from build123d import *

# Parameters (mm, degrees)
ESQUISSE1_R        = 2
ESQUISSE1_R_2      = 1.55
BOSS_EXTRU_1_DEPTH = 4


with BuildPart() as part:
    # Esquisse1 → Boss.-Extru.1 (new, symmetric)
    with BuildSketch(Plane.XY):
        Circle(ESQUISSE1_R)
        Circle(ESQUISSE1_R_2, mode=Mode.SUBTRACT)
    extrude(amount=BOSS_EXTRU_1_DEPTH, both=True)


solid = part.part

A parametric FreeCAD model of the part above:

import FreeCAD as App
import Part
import Sketcher

doc = App.newDocument("Part")
body = doc.addObject("PartDesign::Body", "Body")

# Sketch on XY plane
sketch1 = body.newObject("Sketcher::SketchObject", "Sketch")
sketch1.AttachmentSupport = (doc.getObject("XY_Plane"), [""])
sketch1.MapMode = "FlatFace"
sketch1.addGeometry(Part.Circle(App.Vector(0, 0, 0), App.Vector(0, 0, 1), 2), False)
sketch1.addGeometry(Part.Circle(App.Vector(0, 0, 0), App.Vector(0, 0, 1), 1.55), False)
sketch1.addConstraint(Sketcher.Constraint("Coincident", 0, 3, -1, 1))
sketch1.addConstraint(Sketcher.Constraint("Coincident", 1, 3, -1, 1))
sketch1.addConstraint(Sketcher.Constraint("Diameter", 0, 4.0))
sketch1.addConstraint(Sketcher.Constraint("Diameter", 1, 3.1))
pad1 = body.newObject("PartDesign::Pad", "Pad")
pad1.Profile = sketch1
pad1.Length = 8
pad1.Midplane = True

doc.recompute()
